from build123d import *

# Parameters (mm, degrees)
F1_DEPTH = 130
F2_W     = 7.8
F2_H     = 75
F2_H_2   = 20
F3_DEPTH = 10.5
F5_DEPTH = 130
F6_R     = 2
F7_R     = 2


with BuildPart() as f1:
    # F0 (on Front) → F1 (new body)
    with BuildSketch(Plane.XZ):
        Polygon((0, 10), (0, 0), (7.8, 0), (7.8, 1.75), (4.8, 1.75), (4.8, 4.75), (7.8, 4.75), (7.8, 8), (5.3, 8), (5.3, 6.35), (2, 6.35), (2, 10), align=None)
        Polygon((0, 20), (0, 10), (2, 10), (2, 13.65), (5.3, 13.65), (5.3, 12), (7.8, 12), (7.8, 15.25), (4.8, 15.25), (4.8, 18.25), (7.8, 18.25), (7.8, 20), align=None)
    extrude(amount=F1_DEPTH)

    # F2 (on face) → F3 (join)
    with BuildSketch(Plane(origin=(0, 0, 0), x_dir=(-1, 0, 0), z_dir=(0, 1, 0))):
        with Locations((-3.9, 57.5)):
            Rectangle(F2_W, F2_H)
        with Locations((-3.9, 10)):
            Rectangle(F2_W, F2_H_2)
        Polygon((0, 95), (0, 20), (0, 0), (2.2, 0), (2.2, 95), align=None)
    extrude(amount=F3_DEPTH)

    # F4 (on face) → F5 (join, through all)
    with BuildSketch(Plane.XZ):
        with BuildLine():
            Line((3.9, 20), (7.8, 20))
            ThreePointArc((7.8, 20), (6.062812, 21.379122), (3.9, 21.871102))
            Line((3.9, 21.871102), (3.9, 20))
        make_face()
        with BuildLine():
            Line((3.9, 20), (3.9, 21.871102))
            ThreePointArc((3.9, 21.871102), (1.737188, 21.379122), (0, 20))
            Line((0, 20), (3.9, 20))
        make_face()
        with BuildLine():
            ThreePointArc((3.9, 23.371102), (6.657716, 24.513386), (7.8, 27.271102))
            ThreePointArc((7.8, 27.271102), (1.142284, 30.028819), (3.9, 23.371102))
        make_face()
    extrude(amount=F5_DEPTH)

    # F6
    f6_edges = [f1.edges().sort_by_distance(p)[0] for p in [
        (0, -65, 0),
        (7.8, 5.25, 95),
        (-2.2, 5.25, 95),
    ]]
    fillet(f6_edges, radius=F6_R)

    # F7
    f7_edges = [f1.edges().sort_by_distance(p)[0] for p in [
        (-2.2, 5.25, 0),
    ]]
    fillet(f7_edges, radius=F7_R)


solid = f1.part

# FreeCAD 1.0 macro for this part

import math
import FreeCAD as App
import Part
import Sketcher
Q = App.Units.Quantity


def edges_at(feature, points):
    """Names of the edges that pass closest to the given points."""
    edges = feature.Shape.Edges
    near = lambda p: min(range(len(edges)), key=lambda i: edges[i].distToShape(Part.Vertex(*p))[0])
    return sorted({f"Edge{near(p) + 1}" for p in points})


def add_polygon(sketch, points):
    """Adds a closed chain of lines whose ends are joined by coincident constraints."""
    first, n = sketch.GeometryCount, len(points)
    for a, b in zip(points, points[1:] + points[:1]):
        sketch.addGeometry(Part.LineSegment(App.Vector(*a, 0), App.Vector(*b, 0)), False)
    for i in range(n):
        sketch.addConstraint(Sketcher.Constraint("Coincident", first + i, 2, first + (i + 1) % n, 1))

doc = App.newDocument("Part")
body = doc.addObject("PartDesign::Body", "Body")

# Sketch on XZ plane
sketch1 = body.newObject("Sketcher::SketchObject", "Sketch")
sketch1.AttachmentSupport = (doc.getObject("XZ_Plane"), [""])
sketch1.MapMode = "FlatFace"
add_polygon(sketch1, [(0, 0), (7.8, 0), (7.8, 1.75), (4.8, 1.75), (4.8, 4.75), (7.8, 4.75), (7.8, 8), (5.3, 8), (5.3, 6.35), (2, 6.35), (2, 13.65), (5.3, 13.65), (5.3, 12), (7.8, 12), (7.8, 15.25), (4.8, 15.25), (4.8, 18.25), (7.8, 18.25), (7.8, 20), (0, 20)])  # lines 0-19
sketch1.addConstraint([
    Sketcher.Constraint("Horizontal", 0),
    Sketcher.Constraint("Vertical", 1),
    Sketcher.Constraint("Horizontal", 2),
    Sketcher.Constraint("Vertical", 3),
    Sketcher.Constraint("Horizontal", 4),
    Sketcher.Constraint("Vertical", 5),
    Sketcher.Constraint("Horizontal", 6),
    Sketcher.Constraint("Vertical", 7),
    Sketcher.Constraint("Horizontal", 8),
    Sketcher.Constraint("Vertical", 9),
    Sketcher.Constraint("Horizontal", 10),
    Sketcher.Constraint("Vertical", 11),
    Sketcher.Constraint("Horizontal", 12),
    Sketcher.Constraint("Vertical", 13),
    Sketcher.Constraint("Horizontal", 14),
    Sketcher.Constraint("Vertical", 15),
    Sketcher.Constraint("Horizontal", 16),
    Sketcher.Constraint("Vertical", 17),
    Sketcher.Constraint("Horizontal", 18),
    Sketcher.Constraint("Vertical", 19),
    Sketcher.Constraint("Coincident", 19, 2, -1, 1),
    Sketcher.Constraint("Vertical", 1, 2, 4, 2),
    Sketcher.Constraint("Vertical", 7, 2, 10, 2),
    Sketcher.Constraint("Vertical", 5, 2, 12, 2),
    Sketcher.Constraint("Vertical", 3, 2, 14, 2),
    Sketcher.Constraint("Vertical", 13, 2, 16, 2),
    Sketcher.Constraint("Equal", 16, 3),
    Sketcher.Constraint("Equal", 7, 11),
    Sketcher.Constraint("Equal", 5, 13),
    Sketcher.Constraint("Equal", 3, 15),
    Sketcher.Constraint("Equal", 1, 17),
    Sketcher.Constraint("DistanceX", 2, 2, 2, 1, Q("3 mm")),
    Sketcher.Constraint("DistanceY", 19, 2, 19, 1, Q("20 mm")),
    Sketcher.Constraint("DistanceX", 0, 1, 0, 2, Q("7.8 mm")),
    Sketcher.Constraint("DistanceX", 6, 2, 6, 1, Q("2.5 mm")),
    Sketcher.Constraint("DistanceX", 8, 2, 8, 1, Q("3.3 mm")),
    Sketcher.Constraint("DistanceY", 9, 1, 9, 2, Q("7.3 mm")),
    Sketcher.Constraint("DistanceY", -1, 1, 5, 2, Q("8 mm")),
    Sketcher.Constraint("DistanceY", 1, 1, 1, 2, Q("1.75 mm")),
])
pad1 = body.newObject("PartDesign::Pad", "Pad")
pad1.Profile = sketch1
pad1.Length = 130

# Sketch on XZ plane
sketch2 = body.newObject("Sketcher::SketchObject", "Sketch001")
sketch2.AttachmentSupport = (doc.getObject("XZ_Plane"), [""])
sketch2.MapMode = "FlatFace"
add_polygon(sketch2, [(7.8, 95), (7.8, 0), (-2.2, 0), (-2.2, 95)])  # lines 0-3
sketch2.addConstraint([
    Sketcher.Constraint("Vertical", 0),
    Sketcher.Constraint("Horizontal", 1),
    Sketcher.Constraint("Vertical", 2),
    Sketcher.Constraint("Horizontal", 3),
    Sketcher.Constraint("PointOnObject", 0, 2, -1),
    Sketcher.Constraint("DistanceX", 1, 2, 1, 1, Q("10 mm")),
    Sketcher.Constraint("DistanceY", 0, 2, 0, 1, Q("95 mm")),
    Sketcher.Constraint("DistanceX", -1, 1, 0, 2, Q("7.8 mm")),
])
pad2 = body.newObject("PartDesign::Pad", "Pad001")
pad2.Profile = sketch2
pad2.Length = 10.5
pad2.Reversed = True

# Sketch on XZ plane
sketch3 = body.newObject("Sketcher::SketchObject", "Sketch002")
sketch3.AttachmentSupport = (doc.getObject("XZ_Plane"), [""])
sketch3.MapMode = "FlatFace"
sketch3.addGeometry([
    Part.ArcOfCircle(Part.Circle(App.Vector(3.9, 16.871101, 0), App.Vector(0, 0, 1), 5.000001), math.radians(38.739438), math.radians(89.999997)),  # 0
    Part.ArcOfCircle(Part.Circle(App.Vector(3.9, 16.871101, 0), App.Vector(0, 0, 1), 5.000001), math.radians(90.000003), math.radians(141.260562)),  # 1
    Part.LineSegment(App.Vector(0, 20, 0), App.Vector(7.8, 20, 0)),  # 2
    Part.ArcOfCircle(Part.Circle(App.Vector(3.899998, 27.271104, 0), App.Vector(0, 0, 1), 3.900002), math.radians(-89.999978), math.radians(-0.000022)),  # 3
    Part.ArcOfCircle(Part.Circle(App.Vector(3.9, 27.271102, 0), App.Vector(0, 0, 1), 3.9), math.radians(0), math.radians(270)),  # 4
], False)
sketch3.addConstraint([
    Sketcher.Constraint("Tangent", 0, 2, 1, 1),
    Sketcher.Constraint("Coincident", 1, 2, 2, 1),
    Sketcher.Constraint("Coincident", 2, 2, 0, 1),
    Sketcher.Constraint("Tangent", 3, 1, 4, 2),
    Sketcher.Constraint("Coincident", 4, 1, 3, 2),
    Sketcher.Constraint("Horizontal", 2),
    Sketcher.Constraint("Equal", 0, 1),
    Sketcher.Constraint("PointOnObject", 1, 2, -2),
    Sketcher.Constraint("Horizontal", 3, 3, 4, 1),
    Sketcher.Constraint("Vertical", 1, 3, 3, 3),
    Sketcher.Constraint("Vertical", 4, 3, 0, 2),
    Sketcher.Constraint("Vertical", 0, 2, 3, 1),
    Sketcher.Constraint("Vertical", 2, 2, 4, 1),
    Sketcher.Constraint("Radius", 0, Q("5.000001 mm")),
    Sketcher.Constraint("Radius", 3, Q("3.900002 mm")),
    Sketcher.Constraint("DistanceY", -1, 1, 1, 2, Q("20 mm")),
    Sketcher.Constraint("DistanceY", 0, 3, 4, 3, Q("10.400001 mm")),
])
pad3 = body.newObject("PartDesign::Pad", "Pad002")
pad3.Profile = sketch3
pad3.Length = 130
doc.recompute()

fillet = body.newObject("PartDesign::Fillet", "Fillet")
fillet.Base = (pad3, edges_at(pad3, [(0, -65, 0), (7.8, 5.25, 95), (-2.2, 5.25, 95)]))
fillet.Radius = 2
doc.recompute()

fillet2 = body.newObject("PartDesign::Fillet", "Fillet001")
fillet2.Base = (fillet, edges_at(fillet, [(-2.2, 5.25, 0)]))
fillet2.Radius = 2

doc.recompute()
